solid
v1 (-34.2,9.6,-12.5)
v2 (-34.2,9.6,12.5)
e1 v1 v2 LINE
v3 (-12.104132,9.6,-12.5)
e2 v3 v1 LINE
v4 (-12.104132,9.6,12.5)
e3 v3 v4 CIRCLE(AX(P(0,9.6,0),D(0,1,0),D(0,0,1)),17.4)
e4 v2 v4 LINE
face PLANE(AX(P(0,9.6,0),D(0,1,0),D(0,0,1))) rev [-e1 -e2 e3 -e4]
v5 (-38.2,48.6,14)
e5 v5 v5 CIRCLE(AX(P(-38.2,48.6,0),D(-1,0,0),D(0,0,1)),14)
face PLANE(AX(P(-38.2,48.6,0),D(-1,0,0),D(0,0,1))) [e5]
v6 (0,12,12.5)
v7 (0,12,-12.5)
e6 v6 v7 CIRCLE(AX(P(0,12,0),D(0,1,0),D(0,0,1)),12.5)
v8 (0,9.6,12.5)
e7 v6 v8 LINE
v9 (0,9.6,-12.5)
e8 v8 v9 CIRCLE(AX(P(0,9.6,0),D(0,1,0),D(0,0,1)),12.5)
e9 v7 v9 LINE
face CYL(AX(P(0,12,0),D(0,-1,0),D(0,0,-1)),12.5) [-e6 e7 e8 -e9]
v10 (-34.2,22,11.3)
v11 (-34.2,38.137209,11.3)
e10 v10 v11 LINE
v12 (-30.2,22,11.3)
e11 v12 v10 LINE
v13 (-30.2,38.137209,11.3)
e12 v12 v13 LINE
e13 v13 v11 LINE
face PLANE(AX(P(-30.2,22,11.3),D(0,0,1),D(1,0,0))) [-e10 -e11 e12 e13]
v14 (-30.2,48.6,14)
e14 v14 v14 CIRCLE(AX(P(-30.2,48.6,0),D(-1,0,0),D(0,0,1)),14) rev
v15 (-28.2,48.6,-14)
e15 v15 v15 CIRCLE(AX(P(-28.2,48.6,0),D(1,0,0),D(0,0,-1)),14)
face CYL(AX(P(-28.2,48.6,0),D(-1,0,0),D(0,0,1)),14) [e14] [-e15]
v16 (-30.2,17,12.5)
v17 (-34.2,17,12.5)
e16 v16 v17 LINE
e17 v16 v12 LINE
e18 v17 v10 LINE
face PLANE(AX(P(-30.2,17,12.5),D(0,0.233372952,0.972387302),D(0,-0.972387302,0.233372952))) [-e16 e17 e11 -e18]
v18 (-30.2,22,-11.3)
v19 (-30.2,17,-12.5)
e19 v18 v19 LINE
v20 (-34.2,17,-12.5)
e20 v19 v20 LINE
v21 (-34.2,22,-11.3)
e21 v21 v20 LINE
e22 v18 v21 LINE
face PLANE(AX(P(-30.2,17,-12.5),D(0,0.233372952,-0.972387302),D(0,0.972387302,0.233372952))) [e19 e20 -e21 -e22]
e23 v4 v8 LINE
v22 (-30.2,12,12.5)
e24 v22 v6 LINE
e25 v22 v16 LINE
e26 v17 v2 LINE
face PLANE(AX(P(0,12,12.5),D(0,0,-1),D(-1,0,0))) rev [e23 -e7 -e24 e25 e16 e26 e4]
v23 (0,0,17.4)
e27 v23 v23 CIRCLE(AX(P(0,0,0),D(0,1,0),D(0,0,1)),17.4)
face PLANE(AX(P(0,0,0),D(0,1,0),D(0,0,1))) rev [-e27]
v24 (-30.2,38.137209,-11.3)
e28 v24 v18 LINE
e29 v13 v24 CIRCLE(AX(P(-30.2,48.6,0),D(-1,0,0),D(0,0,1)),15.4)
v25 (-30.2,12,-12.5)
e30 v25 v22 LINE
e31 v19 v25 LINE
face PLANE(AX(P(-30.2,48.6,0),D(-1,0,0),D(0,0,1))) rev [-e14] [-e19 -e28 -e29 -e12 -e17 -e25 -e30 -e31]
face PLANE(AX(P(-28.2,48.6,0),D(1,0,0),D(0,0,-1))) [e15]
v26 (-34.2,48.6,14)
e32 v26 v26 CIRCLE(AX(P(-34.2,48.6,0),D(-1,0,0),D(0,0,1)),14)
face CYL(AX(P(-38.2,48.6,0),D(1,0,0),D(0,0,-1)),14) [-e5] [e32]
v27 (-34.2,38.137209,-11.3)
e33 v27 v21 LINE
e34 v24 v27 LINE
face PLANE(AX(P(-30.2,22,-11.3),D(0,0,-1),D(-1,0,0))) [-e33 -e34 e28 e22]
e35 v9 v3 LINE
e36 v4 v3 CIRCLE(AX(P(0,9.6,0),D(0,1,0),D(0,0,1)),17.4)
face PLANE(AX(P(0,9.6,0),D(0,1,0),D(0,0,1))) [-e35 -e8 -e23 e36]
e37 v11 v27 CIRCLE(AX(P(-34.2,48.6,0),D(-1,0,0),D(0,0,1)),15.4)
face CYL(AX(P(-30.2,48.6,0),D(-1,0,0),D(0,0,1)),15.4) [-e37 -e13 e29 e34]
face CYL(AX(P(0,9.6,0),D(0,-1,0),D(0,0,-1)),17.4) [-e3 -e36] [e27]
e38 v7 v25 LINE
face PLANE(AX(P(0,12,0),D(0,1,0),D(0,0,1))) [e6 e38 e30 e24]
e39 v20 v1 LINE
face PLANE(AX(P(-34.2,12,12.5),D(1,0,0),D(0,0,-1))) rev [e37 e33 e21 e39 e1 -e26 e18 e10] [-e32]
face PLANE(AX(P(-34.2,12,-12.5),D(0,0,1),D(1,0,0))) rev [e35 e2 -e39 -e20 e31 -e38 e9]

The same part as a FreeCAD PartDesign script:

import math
import FreeCAD as App
import Part
import Sketcher

doc = App.newDocument("Part")
body = doc.addObject("PartDesign::Body", "Body")

# Sketch on XZ plane
sketch1 = doc.addObject("Sketcher::SketchObject", "Sketch")
body.addObject(sketch1)
sketch1.AttachmentSupport = (doc.XZ_Plane, [""])
sketch1.MapMode = "FlatFace"
sketch1.addGeometry(Part.Circle(App.Vector(0, 0, 0), App.Vector(0, 0, 1), 17), False)
sketch1.addConstraint(Sketcher.Constraint("Coincident", 0, 3, -1, 1))
sketch1.addConstraint(Sketcher.Constraint("Diameter", 0, 34.8))
pad1 = doc.addObject("PartDesign::Pad", "Pad")
body.addObject(pad1)
pad1.Profile = sketch1
pad1.Length = 9.6
pad1.Reversed = True

# Sketch on XZ plane
sketch2 = doc.addObject("Sketcher::SketchObject", "Sketch001")
body.addObject(sketch2)
sketch2.AttachmentSupport = (doc.XZ_Plane, [""])
sketch2.MapMode = "FlatFace"
sketch2.AttachmentOffset = App.Placement(App.Vector(0, 0, -9.6), App.Rotation())
sketch2.addGeometry(Part.LineSegment(App.Vector(-34, 12, 0), App.Vector(0, 12, 0)), False)
sketch2.addGeometry(Part.ArcOfCircle(Part.Circle(App.Vector(0, 0, 0), App.Vector(0, 0, 1), 12), math.radians(-90), math.radians(90)), False)
sketch2.addGeometry(Part.LineSegment(App.Vector(0, -12, 0), App.Vector(-34, -12, 0)), False)
sketch2.addGeometry(Part.LineSegment(App.Vector(-34, -12, 0), App.Vector(-34, 12, 0)), False)
sketch2.addConstraint(Sketcher.Constraint("Tangent", 0, 2, 1, 2))
sketch2.addConstraint(Sketcher.Constraint("Tangent", 1, 1, 2, 1))
sketch2.addConstraint(Sketcher.Constraint("Coincident", 2, 2, 3, 1))
sketch2.addConstraint(Sketcher.Constraint("Coincident", 3, 2, 0, 1))
sketch2.addConstraint(Sketcher.Constraint("Horizontal", 0))
sketch2.addConstraint(Sketcher.Constraint("Horizontal", 2))
sketch2.addConstraint(Sketcher.Constraint("Vertical", 3))
sketch2.addConstraint(Sketcher.Constraint("Coincident", 1, 3, -1, 1))
sketch2.addConstraint(Sketcher.Constraint("Radius", 1, 12.5))
sketch2.addConstraint(Sketcher.Constraint("DistanceX", 0, 1, 0, 2, 34.2))
pad2 = doc.addObject("PartDesign::Pad", "Pad001")
body.addObject(pad2)
pad2.Profile = sketch2
pad2.Length = 2.4
pad2.Reversed = True

# Sketch on YZ plane
sketch3 = doc.addObject("Sketcher::SketchObject", "Sketch002")
body.addObject(sketch3)
sketch3.AttachmentSupport = (doc.YZ_Plane, [""])
sketch3.MapMode = "FlatFace"
sketch3.AttachmentOffset = App.Placement(App.Vector(0, 0, -34.2), App.Rotation())
sketch3.addGeometry(Part.LineSegment(App.Vector(22, 11, 0), App.Vector(38, 11, 0)), False)
sketch3.addGeometry(Part.ArcOfCircle(Part.Circle(App.Vector(49, 0, 0), App.Vector(0, 0, 1), 15), math.radians(-133), math.radians(133)), False)
sketch3.addGeometry(Part.LineSegment(App.Vector(38, -11, 0), App.Vector(22, -11, 0)), False)
sketch3.addGeometry(Part.LineSegment(App.Vector(22, -11, 0), App.Vector(17, -12, 0)), False)
sketch3.addGeometry(Part.LineSegment(App.Vector(17, -12, 0), App.Vector(12, -12, 0)), False)
sketch3.addGeometry(Part.LineSegment(App.Vector(12, -12, 0), App.Vector(12, 12, 0)), False)
sketch3.addGeometry(Part.LineSegment(App.Vector(12, 12, 0), App.Vector(17, 12, 0)), False)
sketch3.addGeometry(Part.LineSegment(App.Vector(17, 12, 0), App.Vector(22, 11, 0)), False)
sketch3.addConstraint(Sketcher.Constraint("Coincident", 0, 2, 1, 2))
sketch3.addConstraint(Sketcher.Constraint("Coincident", 1, 1, 2, 1))
sketch3.addConstraint(Sketcher.Constraint("Coincident", 2, 2, 3, 1))
sketch3.addConstraint(Sketcher.Constraint("Coincident", 3, 2, 4, 1))
sketch3.addConstraint(Sketcher.Constraint("Coincident", 4, 2, 5, 1))
sketch3.addConstraint(Sketcher.Constraint("Coincident", 5, 2, 6, 1))
sketch3.addConstraint(Sketcher.Constraint("Coincident", 6, 2, 7, 1))
sketch3.addConstraint(Sketcher.Constraint("Coincident", 7, 2, 0, 1))
sketch3.addConstraint(Sketcher.Constraint("Horizontal", 0))
sketch3.addConstraint(Sketcher.Constraint("Horizontal", 2))
sketch3.addConstraint(Sketcher.Constraint("Horizontal", 4))
sketch3.addConstraint(Sketcher.Constraint("Vertical", 5))
sketch3.addConstraint(Sketcher.Constraint("Horizontal", 6))
sketch3.addConstraint(Sketcher.Constraint("Symmetric", 0, 2, 1, 1, -1))
sketch3.addConstraint(Sketcher.Constraint("Symmetric", 3, 2, 6, 2, -1))
sketch3.addConstraint(Sketcher.Constraint("Vertical", 2, 2, 7, 2))
sketch3.addConstraint(Sketcher.Constraint("Radius", 1, 15.4))
sketch3.addConstraint(Sketcher.Constraint("DistanceX", 4, 2, 4, 1, 5.0))
sketch3.addConstraint(Sketcher.Constraint("DistanceY", 5, 1, 5, 2, 25.0))
sketch3.addConstraint(Sketcher.Constraint("DistanceX", -1, 1, 2, 2, 22.0))
sketch3.addConstraint(Sketcher.Constraint("DistanceX", -1, 1, 3, 2, 17.0))
sketch3.addConstraint(Sketcher.Constraint("DistanceX", -1, 1, 1, 3, 48.6))
sketch3.addConstraint(Sketcher.Constraint("DistanceY", -1, 1, 0, 2, 11.3))
pad3 = doc.addObject("PartDesign::Pad", "Pad002")
body.addObject(pad3)
pad3.Profile = sketch3
pad3.Length = 4

# Sketch on YZ plane
sketch4 = doc.addObject("Sketcher::SketchObject", "Sketch003")
body.addObject(sketch4)
sketch4.AttachmentSupport = (doc.YZ_Plane, [""])
sketch4.MapMode = "FlatFace"
sketch4.AttachmentOffset = App.Placement(App.Vector(0, 0, -34.2), App.Rotation())
sketch4.addGeometry(Part.Circle(App.Vector(49, 0, 0), App.Vector(0, 0, 1), 14), False)
sketch4.addConstraint(Sketcher.Constraint("PointOnObject", 0, 3, -1))
sketch4.addConstraint(Sketcher.Constraint("Diameter", 0, 28.0))
sketch4.addConstraint(Sketcher.Constraint("DistanceX", -1, 1, 0, 3, 48.6))
pad4 = doc.addObject("PartDesign::Pad", "Pad003")
body.addObject(pad4)
pad4.Profile = sketch4
pad4.Length = 4
pad4.Reversed = True

# Sketch on YZ plane
sketch5 = doc.addObject("Sketcher::SketchObject", "Sketch004")
body.addObject(sketch5)
sketch5.AttachmentSupport = (doc.YZ_Plane, [""])
sketch5.MapMode = "FlatFace"
sketch5.AttachmentOffset = App.Placement(App.Vector(0, 0, -28.2), App.Rotation())
sketch5.addGeometry(Part.Circle(App.Vector(49, 0, 0), App.Vector(0, 0, 1), 14), False)
sketch5.addConstraint(Sketcher.Constraint("PointOnObject", 0, 3, -1))
sketch5.addConstraint(Sketcher.Constraint("Diameter", 0, 28.0))
sketch5.addConstraint(Sketcher.Constraint("DistanceX", -1, 1, 0, 3, 48.6))
pad5 = doc.addObject("PartDesign::Pad", "Pad004")
body.addObject(pad5)
pad5.Profile = sketch5
pad5.Length = 2
pad5.Reversed = True

doc.recompute()
